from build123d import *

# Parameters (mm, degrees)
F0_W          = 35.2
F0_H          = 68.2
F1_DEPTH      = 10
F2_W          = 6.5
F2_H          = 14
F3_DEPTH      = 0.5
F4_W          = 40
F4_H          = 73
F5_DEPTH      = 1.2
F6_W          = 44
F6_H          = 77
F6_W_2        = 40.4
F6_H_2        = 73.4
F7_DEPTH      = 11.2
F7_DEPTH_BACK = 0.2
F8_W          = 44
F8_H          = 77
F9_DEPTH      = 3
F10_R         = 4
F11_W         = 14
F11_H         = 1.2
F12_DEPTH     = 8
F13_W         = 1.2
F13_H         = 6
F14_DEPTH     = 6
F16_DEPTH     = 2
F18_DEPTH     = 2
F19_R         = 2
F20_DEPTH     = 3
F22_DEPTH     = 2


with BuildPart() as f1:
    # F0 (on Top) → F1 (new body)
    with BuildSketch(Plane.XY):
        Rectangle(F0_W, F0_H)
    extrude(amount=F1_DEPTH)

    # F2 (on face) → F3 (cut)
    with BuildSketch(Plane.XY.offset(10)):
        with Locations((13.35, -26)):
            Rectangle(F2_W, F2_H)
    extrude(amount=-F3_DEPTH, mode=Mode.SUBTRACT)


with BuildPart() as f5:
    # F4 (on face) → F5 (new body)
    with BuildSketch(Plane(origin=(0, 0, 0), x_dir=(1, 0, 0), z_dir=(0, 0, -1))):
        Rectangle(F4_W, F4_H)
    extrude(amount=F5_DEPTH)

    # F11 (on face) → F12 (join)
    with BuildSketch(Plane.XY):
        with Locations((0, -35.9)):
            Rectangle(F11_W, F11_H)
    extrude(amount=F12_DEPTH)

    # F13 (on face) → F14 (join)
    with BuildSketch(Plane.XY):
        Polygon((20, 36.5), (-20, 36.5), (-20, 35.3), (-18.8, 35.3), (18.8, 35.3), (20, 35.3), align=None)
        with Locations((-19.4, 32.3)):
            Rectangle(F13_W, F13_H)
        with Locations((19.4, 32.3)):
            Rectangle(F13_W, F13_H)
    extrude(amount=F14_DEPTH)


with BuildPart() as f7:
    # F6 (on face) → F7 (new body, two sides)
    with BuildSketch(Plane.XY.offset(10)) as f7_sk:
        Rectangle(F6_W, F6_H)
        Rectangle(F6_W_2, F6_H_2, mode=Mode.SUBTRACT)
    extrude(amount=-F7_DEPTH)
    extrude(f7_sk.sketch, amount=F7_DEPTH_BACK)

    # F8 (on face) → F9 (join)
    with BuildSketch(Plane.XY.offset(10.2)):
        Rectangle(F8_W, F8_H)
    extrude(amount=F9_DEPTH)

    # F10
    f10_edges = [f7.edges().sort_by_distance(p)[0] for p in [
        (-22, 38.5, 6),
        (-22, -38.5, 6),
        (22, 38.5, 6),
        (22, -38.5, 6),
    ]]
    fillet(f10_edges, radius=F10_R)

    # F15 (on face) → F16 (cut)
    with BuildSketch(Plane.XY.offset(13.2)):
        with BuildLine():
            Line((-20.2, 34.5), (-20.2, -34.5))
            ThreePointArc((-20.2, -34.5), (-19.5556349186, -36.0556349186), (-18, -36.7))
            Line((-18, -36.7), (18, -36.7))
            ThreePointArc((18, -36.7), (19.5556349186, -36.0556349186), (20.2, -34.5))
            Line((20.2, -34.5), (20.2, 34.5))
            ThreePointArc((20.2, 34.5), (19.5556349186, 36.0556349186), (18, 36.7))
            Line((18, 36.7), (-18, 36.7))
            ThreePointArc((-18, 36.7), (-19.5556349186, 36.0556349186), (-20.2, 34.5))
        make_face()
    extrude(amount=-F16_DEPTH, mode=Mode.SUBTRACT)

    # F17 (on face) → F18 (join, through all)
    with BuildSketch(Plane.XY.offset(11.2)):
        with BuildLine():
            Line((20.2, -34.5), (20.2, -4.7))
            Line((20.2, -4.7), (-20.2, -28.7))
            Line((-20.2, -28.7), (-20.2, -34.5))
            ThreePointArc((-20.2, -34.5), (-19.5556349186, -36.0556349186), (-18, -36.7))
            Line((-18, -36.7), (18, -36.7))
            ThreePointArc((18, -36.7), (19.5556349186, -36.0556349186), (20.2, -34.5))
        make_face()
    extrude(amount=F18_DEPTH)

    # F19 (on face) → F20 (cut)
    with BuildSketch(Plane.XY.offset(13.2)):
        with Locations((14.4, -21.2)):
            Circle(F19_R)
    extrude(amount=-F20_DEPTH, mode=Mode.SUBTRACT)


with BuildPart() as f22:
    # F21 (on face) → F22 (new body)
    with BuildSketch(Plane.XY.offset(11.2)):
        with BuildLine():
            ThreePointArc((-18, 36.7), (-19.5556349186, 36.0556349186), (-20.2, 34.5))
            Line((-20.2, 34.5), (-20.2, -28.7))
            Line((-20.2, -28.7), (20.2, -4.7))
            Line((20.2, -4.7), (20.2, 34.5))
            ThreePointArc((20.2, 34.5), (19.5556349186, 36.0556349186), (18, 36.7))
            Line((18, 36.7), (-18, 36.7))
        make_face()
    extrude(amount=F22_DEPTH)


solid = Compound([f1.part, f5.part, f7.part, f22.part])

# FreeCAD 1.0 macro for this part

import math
import FreeCAD as App
import Part
import Sketcher
Q = App.Units.Quantity


def edges_at(feature, points):
    """Names of the edges that pass closest to the given points."""
    edges = feature.Shape.Edges
    near = lambda p: min(range(len(edges)), key=lambda i: edges[i].distToShape(Part.Vertex(*p))[0])
    return sorted({f"Edge{near(p) + 1}" for p in points})

doc = App.newDocument("Part")
params = doc.addObject("Spreadsheet::Sheet", "Params")
for row, (alias, value) in enumerate([
    ("sketch1_width", "35.2 mm"),
    ("sketch1_height", "68.2 mm"),
    ("pad1_length", "10 mm"),
    ("sketch2_height", "14 mm"),
    ("sketch2_width", "6.5 mm"),
    ("pocket1_length", "0.5 mm"),
    ("sketch3_width", "40 mm"),
    ("sketch3_height", "73 mm"),
    ("pad2_length", "1.2 mm"),
    ("sketch4_width", "14 mm"),
    ("sketch4_height", "1.2 mm"),
    ("pad3_length", "8 mm"),
    ("sketch5_width", "40 mm"),
    ("sketch5_height", "6 mm"),
    ("sketch5_width2", "1.2 mm"),
    ("sketch5_height2", "7.2 mm"),
    ("pad4_length", "6 mm"),
    ("sketch6_width", "44 mm"),
    ("sketch6_height", "77 mm"),
    ("sketch6_width2", "40.4 mm"),
    ("sketch6_height2", "73.4 mm"),
    ("pad5_length", "11.2 mm"),
    ("pad5_length2", "0.2 mm"),
    ("sketch7_width", "44 mm"),
    ("sketch7_height", "77 mm"),
    ("pad6_length", "3 mm"),
    ("fillet_radius", "4 mm"),
    ("sketch8_radius", "2.2 mm"),
    ("sketch8_width", "36 mm"),
    ("sketch8_height", "69 mm"),
    ("pocket2_length", "2 mm"),
    ("sketch9_radius", "2.2 mm"),
    ("sketch9_width", "36 mm"),
    ("sketch9_height", "29.8 mm"),
    ("sketch9_height2", "5.8 mm"),
    ("pad7_length", "2 mm"),
    ("sketch10_diameter", "4 mm"),
    ("pocket3_length", "3 mm"),
    ("sketch11_radius", "2.2 mm"),
    ("sketch11_width", "36 mm"),
    ("sketch11_height", "63.2 mm"),
    ("sketch11_height2", "39.2 mm"),
    ("pad8_length", "2 mm"),
], start=1):
    params.set(f"A{row}", alias)
    params.set(f"B{row}", "=" + value)
    params.setAlias(f"B{row}", alias)

body = doc.addObject("PartDesign::Body", "Body")

sketch1 = doc.addObject("Sketcher::SketchObject", "Sketch")
body.addObject(sketch1)
sketch1.AttachmentSupport = (doc.XY_Plane, [""])
sketch1.MapMode = "FlatFace"
sketch1.addGeometry([
    Part.LineSegment(App.Vector(-18, 34, 0), App.Vector(-18, -34, 0)),
    Part.LineSegment(App.Vector(-18, -34, 0), App.Vector(18, -34, 0)),
    Part.LineSegment(App.Vector(18, -34, 0), App.Vector(18, 34, 0)),
    Part.LineSegment(App.Vector(18, 34, 0), App.Vector(-18, 34, 0)),
], False)
sketch1.addConstraint([
    Sketcher.Constraint("Coincident", 0, 2, 1, 1),
    Sketcher.Constraint("Coincident", 1, 2, 2, 1),
    Sketcher.Constraint("Coincident", 2, 2, 3, 1),
    Sketcher.Constraint("Coincident", 3, 2, 0, 1),
    Sketcher.Constraint("Vertical", 0),
    Sketcher.Constraint("Horizontal", 1),
    Sketcher.Constraint("Vertical", 2),
    Sketcher.Constraint("Horizontal", 3),
    Sketcher.Constraint("Symmetric", 0, 2, 2, 2, -1, 1),
    Sketcher.Constraint("DistanceX", 1, 1, 1, 2, Q("35.2 mm")),
    Sketcher.Constraint("DistanceY", 0, 2, 0, 1, Q("68.2 mm")),
])
sketch1.setExpression("Constraints[9]", "Params.sketch1_width")
sketch1.setExpression("Constraints[10]", "Params.sketch1_height")
pad1 = doc.addObject("PartDesign::Pad", "Pad")
body.addObject(pad1)
pad1.Profile = sketch1
pad1.setExpression("Length", "Params.pad1_length")

sketch2 = doc.addObject("Sketcher::SketchObject", "Sketch001")
body.addObject(sketch2)
sketch2.AttachmentSupport = (doc.XY_Plane, [""])
sketch2.MapMode = "FlatFace"
sketch2.AttachmentOffset = App.Placement(App.Vector(0, 0, 10), App.Rotation())
sketch2.addGeometry([
    Part.LineSegment(App.Vector(10, -19, 0), App.Vector(10, -33, 0)),
    Part.LineSegment(App.Vector(10, -33, 0), App.Vector(17, -33, 0)),
    Part.LineSegment(App.Vector(17, -33, 0), App.Vector(17, -19, 0)),
    Part.LineSegment(App.Vector(17, -19, 0), App.Vector(10, -19, 0)),
], False)
sketch2.addConstraint([
    Sketcher.Constraint("Coincident", 0, 2, 1, 1),
    Sketcher.Constraint("Coincident", 1, 2, 2, 1),
    Sketcher.Constraint("Coincident", 2, 2, 3, 1),
    Sketcher.Constraint("Coincident", 3, 2, 0, 1),
    Sketcher.Constraint("Vertical", 0),
    Sketcher.Constraint("Horizontal", 1),
    Sketcher.Constraint("Vertical", 2),
    Sketcher.Constraint("Horizontal", 3),
    Sketcher.Constraint("DistanceY", 0, 2, 0, 1, Q("14 mm")),
    Sketcher.Constraint("DistanceX", 1, 1, 1, 2, Q("6.5 mm")),
    Sketcher.Constraint("DistanceY", 0, 2, -1, 1, Q("33 mm")),
    Sketcher.Constraint("DistanceX", -1, 1, 0, 2, Q("10.1 mm")),
])
sketch2.setExpression("Constraints[8]", "Params.sketch2_height")
sketch2.setExpression("Constraints[9]", "Params.sketch2_width")
pocket1 = doc.addObject("PartDesign::Pocket", "Pocket")
body.addObject(pocket1)
pocket1.Profile = sketch2
pocket1.setExpression("Length", "Params.pocket1_length")
body2 = doc.addObject("PartDesign::Body", "Body001")

sketch3 = doc.addObject("Sketcher::SketchObject", "Sketch002")
body2.addObject(sketch3)
sketch3.AttachmentSupport = (doc.getObject("XY_Plane001"), [""])
sketch3.MapMode = "FlatFace"
sketch3.addGeometry([
    Part.LineSegment(App.Vector(-20, -36, 0), App.Vector(-20, 36, 0)),
    Part.LineSegment(App.Vector(-20, 36, 0), App.Vector(20, 36, 0)),
    Part.LineSegment(App.Vector(20, 36, 0), App.Vector(20, -36, 0)),
    Part.LineSegment(App.Vector(20, -36, 0), App.Vector(-20, -36, 0)),
], False)
sketch3.addConstraint([
    Sketcher.Constraint("Coincident", 0, 2, 1, 1),
    Sketcher.Constraint("Coincident", 1, 2, 2, 1),
    Sketcher.Constraint("Coincident", 2, 2, 3, 1),
    Sketcher.Constraint("Coincident", 3, 2, 0, 1),
    Sketcher.Constraint("Vertical", 0),
    Sketcher.Constraint("Horizontal", 1),
    Sketcher.Constraint("Vertical", 2),
    Sketcher.Constraint("Horizontal", 3),
    Sketcher.Constraint("Symmetric", 0, 2, 2, 2, -1, 1),
    Sketcher.Constraint("DistanceX", 1, 1, 1, 2, Q("40 mm")),
    Sketcher.Constraint("DistanceY", 0, 1, 0, 2, Q("73 mm")),
])
sketch3.setExpression("Constraints[9]", "Params.sketch3_width")
sketch3.setExpression("Constraints[10]", "Params.sketch3_height")
pad2 = doc.addObject("PartDesign::Pad", "Pad001")
body2.addObject(pad2)
pad2.Profile = sketch3
pad2.setExpression("Length", "Params.pad2_length")
pad2.Reversed = True

sketch4 = doc.addObject("Sketcher::SketchObject", "Sketch003")
body2.addObject(sketch4)
sketch4.AttachmentSupport = (doc.getObject("XY_Plane001"), [""])
sketch4.MapMode = "FlatFace"
sketch4.addGeometry([
    Part.LineSegment(App.Vector(-7, -35.3, 0), App.Vector(-7, -36.5, 0)),
    Part.LineSegment(App.Vector(-7, -36.5, 0), App.Vector(7, -36.5, 0)),
    Part.LineSegment(App.Vector(7, -36.5, 0), App.Vector(7, -35.3, 0)),
    Part.LineSegment(App.Vector(7, -35.3, 0), App.Vector(-7, -35.3, 0)),
], False)
sketch4.addConstraint([
    Sketcher.Constraint("Coincident", 0, 2, 1, 1),
    Sketcher.Constraint("Coincident", 1, 2, 2, 1),
    Sketcher.Constraint("Coincident", 2, 2, 3, 1),
    Sketcher.Constraint("Coincident", 3, 2, 0, 1),
    Sketcher.Constraint("Vertical", 0),
    Sketcher.Constraint("Horizontal", 1),
    Sketcher.Constraint("Vertical", 2),
    Sketcher.Constraint("Horizontal", 3),
    Sketcher.Constraint("DistanceX", 1, 1, 1, 2, Q("14 mm")),
    Sketcher.Constraint("DistanceY", 0, 2, 0, 1, Q("1.2 mm")),
    Sketcher.Constraint("DistanceX", 0, 2, -1, 1, Q("7 mm")),
    Sketcher.Constraint("DistanceY", 0, 2, -1, 1, Q("36.5 mm")),
])
sketch4.setExpression("Constraints[8]", "Params.sketch4_width")
sketch4.setExpression("Constraints[9]", "Params.sketch4_height")
pad3 = doc.addObject("PartDesign::Pad", "Pad002")
body2.addObject(pad3)
pad3.Profile = sketch4
pad3.setExpression("Length", "Params.pad3_length")

sketch5 = doc.addObject("Sketcher::SketchObject", "Sketch004")
body2.addObject(sketch5)
sketch5.AttachmentSupport = (doc.getObject("XY_Plane001"), [""])
sketch5.MapMode = "FlatFace"
sketch5.addGeometry([
    Part.LineSegment(App.Vector(20, 36.5, 0), App.Vector(-20, 36.5, 0)),
    Part.LineSegment(App.Vector(-20, 36.5, 0), App.Vector(-20, 29.3, 0)),
    Part.LineSegment(App.Vector(-20, 29.3, 0), App.Vector(-18.8, 29.3, 0)),
    Part.LineSegment(App.Vector(-18.8, 29.3, 0), App.Vector(-18.8, 35.3, 0)),
    Part.LineSegment(App.Vector(-18.8, 35.3, 0), App.Vector(18.8, 35.3, 0)),
    Part.LineSegment(App.Vector(18.8, 35.3, 0), App.Vector(18.8, 29.3, 0)),
    Part.LineSegment(App.Vector(18.8, 29.3, 0), App.Vector(20, 29.3, 0)),
    Part.LineSegment(App.Vector(20, 29.3, 0), App.Vector(20, 36.5, 0)),
], False)
sketch5.addConstraint([
    Sketcher.Constraint("Coincident", 0, 2, 1, 1),
    Sketcher.Constraint("Coincident", 1, 2, 2, 1),
    Sketcher.Constraint("Coincident", 2, 2, 3, 1),
    Sketcher.Constraint("Coincident", 3, 2, 4, 1),
    Sketcher.Constraint("Coincident", 4, 2, 5, 1),
    Sketcher.Constraint("Coincident", 5, 2, 6, 1),
    Sketcher.Constraint("Coincident", 6, 2, 7, 1),
    Sketcher.Constraint("Coincident", 7, 2, 0, 1),
    Sketcher.Constraint("Horizontal", 0),
    Sketcher.Constraint("Vertical", 1),
    Sketcher.Constraint("Horizontal", 2),
    Sketcher.Constraint("Vertical", 3),
    Sketcher.Constraint("Horizontal", 4),
    Sketcher.Constraint("Vertical", 5),
    Sketcher.Constraint("Horizontal", 6),
    Sketcher.Constraint("Vertical", 7),
    Sketcher.Constraint("Symmetric", 2, 2, 5, 2, -2),
    Sketcher.Constraint("Equal", 2, 6),
    Sketcher.Constraint("DistanceX", 0, 2, 0, 1, Q("40 mm")),
    Sketcher.Constraint("DistanceY", 3, 1, 3, 2, Q("6 mm")),
    Sketcher.Constraint("DistanceX", 2, 1, 2, 2, Q("1.2 mm")),
    Sketcher.Constraint("DistanceY", 1, 2, 1, 1, Q("7.2 mm")),
    Sketcher.Constraint("DistanceY", -1, 1, 0, 2, Q("36.5 mm")),
])
sketch5.setExpression("Constraints[18]", "Params.sketch5_width")
sketch5.setExpression("Constraints[19]", "Params.sketch5_height")
sketch5.setExpression("Constraints[20]", "Params.sketch5_width2")
sketch5.setExpression("Constraints[21]", "Params.sketch5_height2")
pad4 = doc.addObject("PartDesign::Pad", "Pad003")
body2.addObject(pad4)
pad4.Profile = sketch5
pad4.setExpression("Length", "Params.pad4_length")
body3 = doc.addObject("PartDesign::Body", "Body002")

sketch6 = doc.addObject("Sketcher::SketchObject", "Sketch005")
body3.addObject(sketch6)
sketch6.AttachmentSupport = (doc.getObject("XY_Plane002"), [""])
sketch6.MapMode = "FlatFace"
sketch6.AttachmentOffset = App.Placement(App.Vector(0, 0, 10), App.Rotation())
sketch6.addGeometry([
    Part.LineSegment(App.Vector(-22, 38, 0), App.Vector(-22, -38, 0)),
    Part.LineSegment(App.Vector(-22, -38, 0), App.Vector(22, -38, 0)),
    Part.LineSegment(App.Vector(22, -38, 0), App.Vector(22, 38, 0)),
    Part.LineSegment(App.Vector(22, 38, 0), App.Vector(-22, 38, 0)),
    Part.LineSegment(App.Vector(20, -37, 0), App.Vector(-20, -37, 0)),
    Part.LineSegment(App.Vector(-20, -37, 0), App.Vector(-20, 37, 0)),
    Part.LineSegment(App.Vector(-20, 37, 0), App.Vector(20, 37, 0)),
    Part.LineSegment(App.Vector(20, 37, 0), App.Vector(20, -37, 0)),
], False)
sketch6.addConstraint([
    Sketcher.Constraint("Coincident", 0, 2, 1, 1),
    Sketcher.Constraint("Coincident", 1, 2, 2, 1),
    Sketcher.Constraint("Coincident", 2, 2, 3, 1),
    Sketcher.Constraint("Coincident", 3, 2, 0, 1),
    Sketcher.Constraint("Coincident", 4, 2, 5, 1),
    Sketcher.Constraint("Coincident", 5, 2, 6, 1),
    Sketcher.Constraint("Coincident", 6, 2, 7, 1),
    Sketcher.Constraint("Coincident", 7, 2, 4, 1),
    Sketcher.Constraint("Vertical", 0),
    Sketcher.Constraint("Horizontal", 1),
    Sketcher.Constraint("Vertical", 2),
    Sketcher.Constraint("Horizontal", 3),
    Sketcher.Constraint("Horizontal", 4),
    Sketcher.Constraint("Vertical", 5),
    Sketcher.Constraint("Horizontal", 6),
    Sketcher.Constraint("Vertical", 7),
    Sketcher.Constraint("Symmetric", 0, 2, 2, 2, -1, 1),
    Sketcher.Constraint("Symmetric", 4, 2, 6, 2, -1, 1),
    Sketcher.Constraint("DistanceX", 1, 1, 1, 2, Q("44 mm")),
    Sketcher.Constraint("DistanceY", 0, 2, 0, 1, Q("77 mm")),
    Sketcher.Constraint("DistanceX", 4, 2, 4, 1, Q("40.4 mm")),
    Sketcher.Constraint("DistanceY", 5, 1, 5, 2, Q("73.4 mm")),
])
sketch6.setExpression("Constraints[18]", "Params.sketch6_width")
sketch6.setExpression("Constraints[19]", "Params.sketch6_height")
sketch6.setExpression("Constraints[20]", "Params.sketch6_width2")
sketch6.setExpression("Constraints[21]", "Params.sketch6_height2")
pad5 = doc.addObject("PartDesign::Pad", "Pad004")
body3.addObject(pad5)
pad5.Profile = sketch6
pad5.Type = "TwoLengths"
pad5.setExpression("Length", "Params.pad5_length")
pad5.setExpression("Length2", "Params.pad5_length2")
pad5.Reversed = True

sketch7 = doc.addObject("Sketcher::SketchObject", "Sketch006")
body3.addObject(sketch7)
sketch7.AttachmentSupport = (doc.getObject("XY_Plane002"), [""])
sketch7.MapMode = "FlatFace"
sketch7.AttachmentOffset = App.Placement(App.Vector(0, 0, 10.2), App.Rotation())
sketch7.addGeometry([
    Part.LineSegment(App.Vector(-22, 38, 0), App.Vector(-22, -38, 0)),
    Part.LineSegment(App.Vector(-22, -38, 0), App.Vector(22, -38, 0)),
    Part.LineSegment(App.Vector(22, -38, 0), App.Vector(22, 38, 0)),
    Part.LineSegment(App.Vector(22, 38, 0), App.Vector(-22, 38, 0)),
], False)
sketch7.addConstraint([
    Sketcher.Constraint("Coincident", 0, 2, 1, 1),
    Sketcher.Constraint("Coincident", 1, 2, 2, 1),
    Sketcher.Constraint("Coincident", 2, 2, 3, 1),
    Sketcher.Constraint("Coincident", 3, 2, 0, 1),
    Sketcher.Constraint("Vertical", 0),
    Sketcher.Constraint("Horizontal", 1),
    Sketcher.Constraint("Vertical", 2),
    Sketcher.Constraint("Horizontal", 3),
    Sketcher.Constraint("Symmetric", 0, 2, 2, 2, -1, 1),
    Sketcher.Constraint("DistanceX", 1, 1, 1, 2, Q("44 mm")),
    Sketcher.Constraint("DistanceY", 0, 2, 0, 1, Q("77 mm")),
])
sketch7.setExpression("Constraints[9]", "Params.sketch7_width")
sketch7.setExpression("Constraints[10]", "Params.sketch7_height")
pad6 = doc.addObject("PartDesign::Pad", "Pad005")
body3.addObject(pad6)
pad6.Profile = sketch7
pad6.setExpression("Length", "Params.pad6_length")
doc.recompute()

fillet = doc.addObject("PartDesign::Fillet", "Fillet")
body3.addObject(fillet)
fillet.Base = (pad6, edges_at(pad6, [
    (-22, 38.5, 6),
    (-22, -38.5, 6),
    (22, 38.5, 6),
    (22, -38.5, 6),
]))
fillet.setExpression("Radius", "Params.fillet_radius")

sketch8 = doc.addObject("Sketcher::SketchObject", "Sketch007")
body3.addObject(sketch8)
sketch8.AttachmentSupport = (doc.getObject("XY_Plane002"), [""])
sketch8.MapMode = "FlatFace"
sketch8.AttachmentOffset = App.Placement(App.Vector(0, 0, 13.2), App.Rotation())
sketch8.addGeometry([
    Part.LineSegment(App.Vector(-20.2, 34.5, 0), App.Vector(-20.2, -34.5, 0)),
    Part.ArcOfCircle(Part.Circle(App.Vector(-18, -34.5, 0), App.Vector(0, 0, 1), 2.2), math.radians(180), math.radians(270)),
    Part.LineSegment(App.Vector(-18, -36.7, 0), App.Vector(18, -36.7, 0)),
    Part.ArcOfCircle(Part.Circle(App.Vector(18, -34.5, 0), App.Vector(0, 0, 1), 2.2), math.radians(-90), math.radians(0)),
    Part.LineSegment(App.Vector(20.2, -34.5, 0), App.Vector(20.2, 34.5, 0)),
    Part.ArcOfCircle(Part.Circle(App.Vector(18, 34.5, 0), App.Vector(0, 0, 1), 2.2), math.radians(0), math.radians(90)),
    Part.LineSegment(App.Vector(18, 36.7, 0), App.Vector(-18, 36.7, 0)),
    Part.ArcOfCircle(Part.Circle(App.Vector(-18, 34.5, 0), App.Vector(0, 0, 1), 2.2), math.radians(90), math.radians(180)),
], False)
sketch8.addConstraint([
    Sketcher.Constraint("Tangent", 0, 2, 1, 1),
    Sketcher.Constraint("Tangent", 1, 2, 2, 1),
    Sketcher.Constraint("Tangent", 2, 2, 3, 1),
    Sketcher.Constraint("Tangent", 3, 2, 4, 1),
    Sketcher.Constraint("Tangent", 4, 2, 5, 1),
    Sketcher.Constraint("Tangent", 5, 2, 6, 1),
    Sketcher.Constraint("Tangent", 6, 2, 7, 1),
    Sketcher.Constraint("Tangent", 7, 2, 0, 1),
    Sketcher.Constraint("Vertical", 0),
    Sketcher.Constraint("Horizontal", 2),
    Sketcher.Constraint("Vertical", 4),
    Sketcher.Constraint("Horizontal", 6),
    Sketcher.Constraint("Equal", 1, 3),
    Sketcher.Constraint("Equal", 3, 5),
    Sketcher.Constraint("Equal", 5, 7),
    Sketcher.Constraint("Symmetric", 1, 3, 5, 3, -1, 1),
    Sketcher.Constraint("Radius", 1, Q("2.2 mm")),
    Sketcher.Constraint("DistanceX", 2, 1, 2, 2, Q("36 mm")),
    Sketcher.Constraint("DistanceY", 0, 2, 0, 1, Q("69 mm")),
])
sketch8.setExpression("Constraints[16]", "Params.sketch8_radius")
sketch8.setExpression("Constraints[17]", "Params.sketch8_width")
sketch8.setExpression("Constraints[18]", "Params.sketch8_height")
pocket2 = doc.addObject("PartDesign::Pocket", "Pocket001")
body3.addObject(pocket2)
pocket2.Profile = sketch8
pocket2.setExpression("Length", "Params.pocket2_length")

sketch9 = doc.addObject("Sketcher::SketchObject", "Sketch008")
body3.addObject(sketch9)
sketch9.AttachmentSupport = (doc.getObject("XY_Plane002"), [""])
sketch9.MapMode = "FlatFace"
sketch9.AttachmentOffset = App.Placement(App.Vector(0, 0, 11.2), App.Rotation())
sketch9.addGeometry([
    Part.LineSegment(App.Vector(20.2, -34.5, 0), App.Vector(20.2, -4.7, 0)),
    Part.LineSegment(App.Vector(20.2, -4.7, 0), App.Vector(-20.2, -28.7, 0)),
    Part.LineSegment(App.Vector(-20.2, -28.7, 0), App.Vector(-20.2, -34.5, 0)),
    Part.ArcOfCircle(Part.Circle(App.Vector(-18, -34.5, 0), App.Vector(0, 0, 1), 2.2), math.radians(180), math.radians(270)),
    Part.LineSegment(App.Vector(-18, -36.7, 0), App.Vector(18, -36.7, 0)),
    Part.ArcOfCircle(Part.Circle(App.Vector(18, -34.5, 0), App.Vector(0, 0, 1), 2.2), math.radians(-90), math.radians(0)),
], False)
sketch9.addConstraint([
    Sketcher.Constraint("Coincident", 0, 2, 1, 1),
    Sketcher.Constraint("Coincident", 1, 2, 2, 1),
    Sketcher.Constraint("Tangent", 2, 2, 3, 1),
    Sketcher.Constraint("Tangent", 3, 2, 4, 1),
    Sketcher.Constraint("Tangent", 4, 2, 5, 1),
    Sketcher.Constraint("Tangent", 5, 2, 0, 1),
    Sketcher.Constraint("Vertical", 0),
    Sketcher.Constraint("Vertical", 2),
    Sketcher.Constraint("Horizontal", 4),
    Sketcher.Constraint("Equal", 3, 5),
    Sketcher.Constraint("Radius", 3, Q("2.2 mm")),
    Sketcher.Constraint("DistanceX", 4, 1, 4, 2, Q("36 mm")),
    Sketcher.Constraint("DistanceY", 0, 1, 0, 2, Q("29.8 mm")),
    Sketcher.Constraint("DistanceY", 2, 2, 2, 1, Q("5.8 mm")),
    Sketcher.Constraint("DistanceX", 3, 3, -1, 1, Q("18 mm")),
    Sketcher.Constraint("DistanceY", 3, 3, -1, 1, Q("34.5 mm")),
])
sketch9.setExpression("Constraints[10]", "Params.sketch9_radius")
sketch9.setExpression("Constraints[11]", "Params.sketch9_width")
sketch9.setExpression("Constraints[12]", "Params.sketch9_height")
sketch9.setExpression("Constraints[13]", "Params.sketch9_height2")
pad7 = doc.addObject("PartDesign::Pad", "Pad006")
body3.addObject(pad7)
pad7.Profile = sketch9
pad7.setExpression("Length", "Params.pad7_length")

sketch10 = doc.addObject("Sketcher::SketchObject", "Sketch009")
body3.addObject(sketch10)
sketch10.AttachmentSupport = (doc.getObject("XY_Plane002"), [""])
sketch10.MapMode = "FlatFace"
sketch10.AttachmentOffset = App.Placement(App.Vector(0, 0, 13.2), App.Rotation())
sketch10.addGeometry(Part.Circle(App.Vector(14.4, -21.2, 0), App.Vector(0, 0, 1), 2), False)
sketch10.addConstraint([
    Sketcher.Constraint("Diameter", 0, Q("4 mm")),
    Sketcher.Constraint("DistanceX", -1, 1, 0, 3, Q("14.4 mm")),
    Sketcher.Constraint("DistanceY", 0, 3, -1, 1, Q("21.2 mm")),
])
sketch10.setExpression("Constraints[0]", "Params.sketch10_diameter")
pocket3 = doc.addObject("PartDesign::Pocket", "Pocket002")
body3.addObject(pocket3)
pocket3.Profile = sketch10
pocket3.setExpression("Length", "Params.pocket3_length")
body4 = doc.addObject("PartDesign::Body", "Body003")

sketch11 = doc.addObject("Sketcher::SketchObject", "Sketch010")
body4.addObject(sketch11)
sketch11.AttachmentSupport = (doc.getObject("XY_Plane003"), [""])
sketch11.MapMode = "FlatFace"
sketch11.AttachmentOffset = App.Placement(App.Vector(0, 0, 11.2), App.Rotation())
sketch11.addGeometry([
    Part.ArcOfCircle(Part.Circle(App.Vector(-18, 34.5, 0), App.Vector(0, 0, 1), 2.2), math.radians(90), math.radians(180)),
    Part.LineSegment(App.Vector(-20.2, 34.5, 0), App.Vector(-20.2, -28.7, 0)),
    Part.LineSegment(App.Vector(-20.2, -28.7, 0), App.Vector(20.2, -4.7, 0)),
    Part.LineSegment(App.Vector(20.2, -4.7, 0), App.Vector(20.2, 34.5, 0)),
    Part.ArcOfCircle(Part.Circle(App.Vector(18, 34.5, 0), App.Vector(0, 0, 1), 2.2), math.radians(0), math.radians(90)),
    Part.LineSegment(App.Vector(18, 36.7, 0), App.Vector(-18, 36.7, 0)),
], False)
sketch11.addConstraint([
    Sketcher.Constraint("Tangent", 0, 2, 1, 1),
    Sketcher.Constraint("Coincident", 1, 2, 2, 1),
    Sketcher.Constraint("Coincident", 2, 2, 3, 1),
    Sketcher.Constraint("Tangent", 3, 2, 4, 1),
    Sketcher.Constraint("Tangent", 4, 2, 5, 1),
    Sketcher.Constraint("Tangent", 5, 2, 0, 1),
    Sketcher.Constraint("Vertical", 1),
    Sketcher.Constraint("Vertical", 3),
    Sketcher.Constraint("Horizontal", 5),
    Sketcher.Constraint("Equal", 0, 4),
    Sketcher.Constraint("Radius", 0, Q("2.2 mm")),
    Sketcher.Constraint("DistanceX", 5, 2, 5, 1, Q("36 mm")),
    Sketcher.Constraint("DistanceY", 1, 2, 1, 1, Q("63.2 mm")),
    Sketcher.Constraint("DistanceY", 3, 1, 3, 2, Q("39.2 mm")),
    Sketcher.Constraint("DistanceX", 0, 3, -1, 1, Q("18 mm")),
    Sketcher.Constraint("DistanceY", -1, 1, 0, 3, Q("34.5 mm")),
])
sketch11.setExpression("Constraints[10]", "Params.sketch11_radius")
sketch11.setExpression("Constraints[11]", "Params.sketch11_width")
sketch11.setExpression("Constraints[12]", "Params.sketch11_height")
sketch11.setExpression("Constraints[13]", "Params.sketch11_height2")
pad8 = doc.addObject("PartDesign::Pad", "Pad007")
body4.addObject(pad8)
pad8.Profile = sketch11
pad8.setExpression("Length", "Params.pad8_length")

doc.recompute()
